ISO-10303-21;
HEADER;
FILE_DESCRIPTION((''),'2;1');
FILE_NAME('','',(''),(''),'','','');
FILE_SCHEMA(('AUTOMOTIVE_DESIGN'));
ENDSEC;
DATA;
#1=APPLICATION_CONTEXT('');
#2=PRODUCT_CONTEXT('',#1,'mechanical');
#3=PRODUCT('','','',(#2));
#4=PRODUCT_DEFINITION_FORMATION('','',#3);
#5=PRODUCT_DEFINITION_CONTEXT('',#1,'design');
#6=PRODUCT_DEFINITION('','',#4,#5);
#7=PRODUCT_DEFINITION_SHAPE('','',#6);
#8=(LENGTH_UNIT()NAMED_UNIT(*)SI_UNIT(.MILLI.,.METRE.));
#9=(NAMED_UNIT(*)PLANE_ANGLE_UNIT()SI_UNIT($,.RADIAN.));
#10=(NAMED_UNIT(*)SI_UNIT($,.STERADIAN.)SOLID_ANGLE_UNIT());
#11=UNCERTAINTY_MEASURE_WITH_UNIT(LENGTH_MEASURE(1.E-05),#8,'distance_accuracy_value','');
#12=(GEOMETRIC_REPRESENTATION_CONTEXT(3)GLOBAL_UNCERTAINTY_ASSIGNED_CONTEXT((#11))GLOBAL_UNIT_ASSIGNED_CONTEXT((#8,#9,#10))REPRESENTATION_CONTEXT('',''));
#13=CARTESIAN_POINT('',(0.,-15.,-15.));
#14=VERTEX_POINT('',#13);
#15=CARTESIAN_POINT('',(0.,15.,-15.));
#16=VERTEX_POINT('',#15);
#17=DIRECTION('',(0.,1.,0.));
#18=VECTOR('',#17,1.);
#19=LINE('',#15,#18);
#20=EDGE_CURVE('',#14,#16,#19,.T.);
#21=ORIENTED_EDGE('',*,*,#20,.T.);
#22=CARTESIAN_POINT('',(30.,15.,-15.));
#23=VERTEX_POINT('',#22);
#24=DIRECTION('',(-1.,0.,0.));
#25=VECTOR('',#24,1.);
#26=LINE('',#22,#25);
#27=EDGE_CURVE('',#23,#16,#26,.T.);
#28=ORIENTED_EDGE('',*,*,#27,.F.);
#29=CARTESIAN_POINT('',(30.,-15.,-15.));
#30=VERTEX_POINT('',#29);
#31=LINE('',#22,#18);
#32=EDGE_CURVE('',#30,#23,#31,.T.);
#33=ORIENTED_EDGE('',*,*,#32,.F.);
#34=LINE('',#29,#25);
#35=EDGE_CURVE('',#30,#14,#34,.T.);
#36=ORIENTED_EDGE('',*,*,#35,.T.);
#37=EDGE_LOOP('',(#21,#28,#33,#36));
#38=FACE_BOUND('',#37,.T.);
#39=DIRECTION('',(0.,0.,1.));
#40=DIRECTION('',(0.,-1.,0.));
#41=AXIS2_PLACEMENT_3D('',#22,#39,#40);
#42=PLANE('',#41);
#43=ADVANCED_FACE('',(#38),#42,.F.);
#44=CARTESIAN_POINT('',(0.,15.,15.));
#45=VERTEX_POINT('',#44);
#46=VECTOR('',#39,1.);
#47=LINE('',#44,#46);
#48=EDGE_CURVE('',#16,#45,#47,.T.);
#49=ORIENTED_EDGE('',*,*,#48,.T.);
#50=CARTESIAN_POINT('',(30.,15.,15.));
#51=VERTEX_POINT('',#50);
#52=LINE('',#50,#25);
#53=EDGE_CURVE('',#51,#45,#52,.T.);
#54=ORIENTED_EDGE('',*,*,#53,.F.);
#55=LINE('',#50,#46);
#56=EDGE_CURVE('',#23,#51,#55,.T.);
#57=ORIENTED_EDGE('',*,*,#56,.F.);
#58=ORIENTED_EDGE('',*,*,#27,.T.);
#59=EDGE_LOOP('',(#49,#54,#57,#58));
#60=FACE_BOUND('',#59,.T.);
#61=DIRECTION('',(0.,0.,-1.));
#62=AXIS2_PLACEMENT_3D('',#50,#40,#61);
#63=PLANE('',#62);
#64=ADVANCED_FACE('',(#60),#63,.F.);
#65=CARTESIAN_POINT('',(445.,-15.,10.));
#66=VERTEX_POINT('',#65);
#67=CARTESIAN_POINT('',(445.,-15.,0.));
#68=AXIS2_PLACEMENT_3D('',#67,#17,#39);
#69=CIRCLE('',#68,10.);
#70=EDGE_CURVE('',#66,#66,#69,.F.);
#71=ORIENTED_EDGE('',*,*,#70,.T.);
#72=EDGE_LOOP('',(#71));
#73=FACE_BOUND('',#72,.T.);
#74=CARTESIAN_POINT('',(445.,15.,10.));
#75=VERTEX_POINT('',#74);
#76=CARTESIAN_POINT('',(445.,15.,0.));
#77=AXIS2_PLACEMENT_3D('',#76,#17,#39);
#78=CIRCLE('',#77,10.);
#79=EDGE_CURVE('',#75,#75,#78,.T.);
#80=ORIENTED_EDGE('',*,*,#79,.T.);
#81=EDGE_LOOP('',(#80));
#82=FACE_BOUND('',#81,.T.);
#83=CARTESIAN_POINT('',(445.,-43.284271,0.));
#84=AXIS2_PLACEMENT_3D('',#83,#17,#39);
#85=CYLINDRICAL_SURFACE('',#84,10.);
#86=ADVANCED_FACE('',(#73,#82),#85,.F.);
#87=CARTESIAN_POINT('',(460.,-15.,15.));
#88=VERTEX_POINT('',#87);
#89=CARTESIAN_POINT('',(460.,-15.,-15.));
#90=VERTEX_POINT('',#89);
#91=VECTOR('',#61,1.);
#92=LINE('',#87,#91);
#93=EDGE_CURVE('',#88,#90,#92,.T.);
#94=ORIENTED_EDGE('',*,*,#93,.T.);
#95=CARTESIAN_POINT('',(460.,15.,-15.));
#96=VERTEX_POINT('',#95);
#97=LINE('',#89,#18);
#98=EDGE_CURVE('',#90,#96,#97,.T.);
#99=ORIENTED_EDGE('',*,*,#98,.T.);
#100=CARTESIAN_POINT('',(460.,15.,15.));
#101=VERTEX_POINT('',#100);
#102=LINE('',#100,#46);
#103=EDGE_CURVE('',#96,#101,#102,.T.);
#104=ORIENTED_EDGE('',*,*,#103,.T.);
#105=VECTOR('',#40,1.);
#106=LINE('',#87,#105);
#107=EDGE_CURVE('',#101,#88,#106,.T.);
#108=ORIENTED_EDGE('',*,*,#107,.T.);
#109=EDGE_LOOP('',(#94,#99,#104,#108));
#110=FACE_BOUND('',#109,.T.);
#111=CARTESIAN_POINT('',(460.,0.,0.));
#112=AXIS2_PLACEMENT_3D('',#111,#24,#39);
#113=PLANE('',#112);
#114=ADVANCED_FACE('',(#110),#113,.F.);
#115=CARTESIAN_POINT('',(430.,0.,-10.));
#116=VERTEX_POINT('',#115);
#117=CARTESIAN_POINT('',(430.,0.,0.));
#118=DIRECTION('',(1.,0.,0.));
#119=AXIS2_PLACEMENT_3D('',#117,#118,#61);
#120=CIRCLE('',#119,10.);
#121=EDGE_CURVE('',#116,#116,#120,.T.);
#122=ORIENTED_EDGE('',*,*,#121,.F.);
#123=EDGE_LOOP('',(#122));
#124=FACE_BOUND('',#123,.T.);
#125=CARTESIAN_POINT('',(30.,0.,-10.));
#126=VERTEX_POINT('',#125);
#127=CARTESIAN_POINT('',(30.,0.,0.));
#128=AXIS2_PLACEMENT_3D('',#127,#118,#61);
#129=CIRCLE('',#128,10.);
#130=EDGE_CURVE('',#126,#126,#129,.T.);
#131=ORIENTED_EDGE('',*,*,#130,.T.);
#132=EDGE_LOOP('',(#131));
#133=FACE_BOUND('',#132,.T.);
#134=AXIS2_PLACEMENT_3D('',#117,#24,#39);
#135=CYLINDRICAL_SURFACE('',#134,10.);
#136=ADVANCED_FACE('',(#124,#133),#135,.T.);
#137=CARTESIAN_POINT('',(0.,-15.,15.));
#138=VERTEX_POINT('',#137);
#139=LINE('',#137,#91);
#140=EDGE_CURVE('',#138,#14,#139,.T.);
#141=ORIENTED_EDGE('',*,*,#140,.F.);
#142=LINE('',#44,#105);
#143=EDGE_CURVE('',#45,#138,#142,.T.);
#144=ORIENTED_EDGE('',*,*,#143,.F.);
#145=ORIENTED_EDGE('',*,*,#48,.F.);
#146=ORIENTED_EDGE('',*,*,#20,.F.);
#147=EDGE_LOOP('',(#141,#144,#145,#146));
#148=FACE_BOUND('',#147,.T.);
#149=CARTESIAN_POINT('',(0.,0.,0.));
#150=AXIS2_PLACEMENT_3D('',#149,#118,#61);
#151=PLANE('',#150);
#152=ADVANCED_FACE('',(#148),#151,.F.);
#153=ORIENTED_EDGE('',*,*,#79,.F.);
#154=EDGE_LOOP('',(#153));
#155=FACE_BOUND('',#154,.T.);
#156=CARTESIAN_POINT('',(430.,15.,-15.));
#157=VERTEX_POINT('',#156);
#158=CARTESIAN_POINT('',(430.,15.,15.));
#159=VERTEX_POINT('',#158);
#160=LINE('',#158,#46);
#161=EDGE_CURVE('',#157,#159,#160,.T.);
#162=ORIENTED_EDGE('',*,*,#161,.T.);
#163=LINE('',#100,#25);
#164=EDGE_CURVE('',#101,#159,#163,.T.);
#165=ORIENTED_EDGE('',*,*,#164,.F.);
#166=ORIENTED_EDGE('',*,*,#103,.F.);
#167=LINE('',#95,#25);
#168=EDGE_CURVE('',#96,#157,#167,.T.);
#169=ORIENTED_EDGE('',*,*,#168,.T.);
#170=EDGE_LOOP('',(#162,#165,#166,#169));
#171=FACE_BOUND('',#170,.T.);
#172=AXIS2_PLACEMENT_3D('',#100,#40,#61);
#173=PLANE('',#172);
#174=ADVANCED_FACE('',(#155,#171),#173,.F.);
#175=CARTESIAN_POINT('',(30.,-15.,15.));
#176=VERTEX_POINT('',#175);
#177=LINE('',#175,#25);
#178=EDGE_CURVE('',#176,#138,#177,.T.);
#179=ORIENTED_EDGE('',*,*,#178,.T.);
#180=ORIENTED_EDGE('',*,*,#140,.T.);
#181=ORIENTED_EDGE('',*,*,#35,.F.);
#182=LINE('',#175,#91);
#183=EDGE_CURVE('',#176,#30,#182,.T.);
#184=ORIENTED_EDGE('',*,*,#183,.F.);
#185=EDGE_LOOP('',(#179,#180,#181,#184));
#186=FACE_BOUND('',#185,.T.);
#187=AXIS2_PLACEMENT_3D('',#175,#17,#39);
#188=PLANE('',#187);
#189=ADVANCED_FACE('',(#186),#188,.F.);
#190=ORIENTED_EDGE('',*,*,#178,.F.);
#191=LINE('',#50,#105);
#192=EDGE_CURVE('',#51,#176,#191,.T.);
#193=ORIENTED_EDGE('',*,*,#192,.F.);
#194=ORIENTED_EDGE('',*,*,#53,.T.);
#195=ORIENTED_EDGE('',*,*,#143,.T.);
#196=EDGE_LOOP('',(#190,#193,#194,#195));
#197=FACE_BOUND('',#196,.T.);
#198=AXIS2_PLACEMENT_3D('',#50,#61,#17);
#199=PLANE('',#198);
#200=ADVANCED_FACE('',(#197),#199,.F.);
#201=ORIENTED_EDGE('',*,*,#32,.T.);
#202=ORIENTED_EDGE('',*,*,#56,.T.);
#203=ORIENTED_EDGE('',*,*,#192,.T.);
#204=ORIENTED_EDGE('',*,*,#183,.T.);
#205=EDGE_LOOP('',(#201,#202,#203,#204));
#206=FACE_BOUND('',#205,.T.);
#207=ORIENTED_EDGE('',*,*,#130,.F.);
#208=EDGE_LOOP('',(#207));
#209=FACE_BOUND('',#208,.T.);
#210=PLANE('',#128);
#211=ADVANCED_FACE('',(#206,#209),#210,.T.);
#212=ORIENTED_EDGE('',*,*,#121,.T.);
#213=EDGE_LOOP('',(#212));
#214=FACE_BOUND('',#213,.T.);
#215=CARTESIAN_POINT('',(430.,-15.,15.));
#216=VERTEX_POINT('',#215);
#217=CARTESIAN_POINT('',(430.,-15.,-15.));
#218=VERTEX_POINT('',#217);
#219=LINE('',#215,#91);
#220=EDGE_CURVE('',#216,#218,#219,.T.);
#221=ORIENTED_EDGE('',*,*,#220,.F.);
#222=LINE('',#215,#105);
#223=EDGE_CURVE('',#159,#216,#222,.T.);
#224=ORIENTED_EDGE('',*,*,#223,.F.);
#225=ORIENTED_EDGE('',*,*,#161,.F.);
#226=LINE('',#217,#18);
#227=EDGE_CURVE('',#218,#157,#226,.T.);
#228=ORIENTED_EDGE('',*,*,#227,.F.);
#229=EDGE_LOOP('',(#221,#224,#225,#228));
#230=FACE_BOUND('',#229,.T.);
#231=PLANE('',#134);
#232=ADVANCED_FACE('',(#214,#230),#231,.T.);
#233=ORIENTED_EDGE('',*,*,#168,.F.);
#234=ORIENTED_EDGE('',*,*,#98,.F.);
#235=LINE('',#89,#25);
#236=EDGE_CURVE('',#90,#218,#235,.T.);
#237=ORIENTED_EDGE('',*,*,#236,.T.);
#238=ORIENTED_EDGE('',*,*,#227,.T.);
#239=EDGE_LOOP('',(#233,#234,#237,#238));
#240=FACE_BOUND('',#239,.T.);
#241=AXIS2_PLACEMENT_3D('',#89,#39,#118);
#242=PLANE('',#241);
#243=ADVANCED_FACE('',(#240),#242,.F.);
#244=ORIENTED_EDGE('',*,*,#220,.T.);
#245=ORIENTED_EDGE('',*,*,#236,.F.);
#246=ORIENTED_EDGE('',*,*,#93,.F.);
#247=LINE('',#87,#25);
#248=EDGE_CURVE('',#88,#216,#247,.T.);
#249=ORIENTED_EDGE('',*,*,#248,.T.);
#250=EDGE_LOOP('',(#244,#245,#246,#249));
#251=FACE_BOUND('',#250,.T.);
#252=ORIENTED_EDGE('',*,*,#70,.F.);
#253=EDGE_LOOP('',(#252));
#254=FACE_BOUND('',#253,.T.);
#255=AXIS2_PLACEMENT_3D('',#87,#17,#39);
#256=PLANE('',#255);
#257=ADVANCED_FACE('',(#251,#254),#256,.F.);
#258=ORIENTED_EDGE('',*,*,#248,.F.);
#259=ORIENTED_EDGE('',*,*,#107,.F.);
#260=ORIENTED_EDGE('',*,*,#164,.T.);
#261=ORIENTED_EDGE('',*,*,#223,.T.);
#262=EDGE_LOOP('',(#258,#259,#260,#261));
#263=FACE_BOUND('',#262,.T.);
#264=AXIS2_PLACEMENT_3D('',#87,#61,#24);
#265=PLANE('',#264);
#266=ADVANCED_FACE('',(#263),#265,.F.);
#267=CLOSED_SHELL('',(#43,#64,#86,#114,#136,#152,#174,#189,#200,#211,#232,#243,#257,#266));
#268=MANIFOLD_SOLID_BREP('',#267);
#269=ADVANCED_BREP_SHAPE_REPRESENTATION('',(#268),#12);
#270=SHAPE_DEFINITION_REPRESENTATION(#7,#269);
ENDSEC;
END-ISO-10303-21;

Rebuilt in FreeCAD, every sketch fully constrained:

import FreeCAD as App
import Part
import Sketcher
Q = App.Units.Quantity

doc = App.newDocument("Part")
body = doc.addObject("PartDesign::Body", "Body")

sketch1 = body.newObject("Sketcher::SketchObject", "Sketch")
sketch1.AttachmentSupport = (doc.getObject("YZ_Plane"), [""])
sketch1.MapMode = "FlatFace"
sketch1.addGeometry([
    Part.LineSegment(App.Vector(15, 15, 0), App.Vector(-15, 15, 0)),
    Part.LineSegment(App.Vector(-15, 15, 0), App.Vector(-15, -15, 0)),
    Part.LineSegment(App.Vector(-15, -15, 0), App.Vector(15, -15, 0)),
    Part.LineSegment(App.Vector(15, -15, 0), App.Vector(15, 15, 0)),
], False)
sketch1.addConstraint([
    Sketcher.Constraint("Coincident", 0, 2, 1, 1),
    Sketcher.Constraint("Coincident", 1, 2, 2, 1),
    Sketcher.Constraint("Coincident", 2, 2, 3, 1),
    Sketcher.Constraint("Coincident", 3, 2, 0, 1),
    Sketcher.Constraint("Horizontal", 0),
    Sketcher.Constraint("Vertical", 1),
    Sketcher.Constraint("Horizontal", 2),
    Sketcher.Constraint("Vertical", 3),
    Sketcher.Constraint("Symmetric", 0, 2, 2, 2, -1, 1),
    Sketcher.Constraint("Equal", 2, 1),
    Sketcher.Constraint("DistanceX", 0, 2, 0, 1, Q("30 mm")),
])
pad1 = body.newObject("PartDesign::Pad", "Pad")
pad1.Profile = sketch1
pad1.Length = 30

sketch2 = body.newObject("Sketcher::SketchObject", "Sketch001")
sketch2.AttachmentSupport = (doc.getObject("YZ_Plane"), [""])
sketch2.MapMode = "FlatFace"
sketch2.AttachmentOffset = App.Placement(App.Vector(0, 0, 30), App.Rotation())
sketch2.addGeometry(Part.Circle(App.Vector(0, 0, 0), App.Vector(0, 0, 1), 10), False)
sketch2.addConstraint([
    Sketcher.Constraint("Coincident", 0, 3, -1, 1),
    Sketcher.Constraint("Diameter", 0, Q("20 mm")),
])
pad2 = body.newObject("PartDesign::Pad", "Pad001")
pad2.Profile = sketch2
pad2.Length = 400

sketch3 = body.newObject("Sketcher::SketchObject", "Sketch002")
sketch3.AttachmentSupport = (doc.getObject("YZ_Plane"), [""])
sketch3.MapMode = "FlatFace"
sketch3.AttachmentOffset = App.Placement(App.Vector(0, 0, 430), App.Rotation())
sketch3.addGeometry([
    Part.LineSegment(App.Vector(15, 15, 0), App.Vector(-15, 15, 0)),
    Part.LineSegment(App.Vector(-15, 15, 0), App.Vector(-15, -15, 0)),
    Part.LineSegment(App.Vector(-15, -15, 0), App.Vector(15, -15, 0)),
    Part.LineSegment(App.Vector(15, -15, 0), App.Vector(15, 15, 0)),
], False)
sketch3.addConstraint([
    Sketcher.Constraint("Coincident", 0, 2, 1, 1),
    Sketcher.Constraint("Coincident", 1, 2, 2, 1),
    Sketcher.Constraint("Coincident", 2, 2, 3, 1),
    Sketcher.Constraint("Coincident", 3, 2, 0, 1),
    Sketcher.Constraint("Horizontal", 0),
    Sketcher.Constraint("Vertical", 1),
    Sketcher.Constraint("Horizontal", 2),
    Sketcher.Constraint("Vertical", 3),
    Sketcher.Constraint("Symmetric", 0, 2, 2, 2, -1, 1),
    Sketcher.Constraint("Equal", 2, 1),
    Sketcher.Constraint("DistanceX", 0, 2, 0, 1, Q("30 mm")),
])
pad3 = body.newObject("PartDesign::Pad", "Pad002")
pad3.Profile = sketch3
pad3.Length = 30

sketch4 = body.newObject("Sketcher::SketchObject", "Sketch003")
sketch4.AttachmentSupport = (doc.getObject("XZ_Plane"), [""])
sketch4.MapMode = "FlatFace"
sketch4.AttachmentOffset = App.Placement(App.Vector(0, 0, -15), App.Rotation())
sketch4.addGeometry(Part.Circle(App.Vector(445, 0, 0), App.Vector(0, 0, 1), 10), False)
sketch4.addConstraint([
    Sketcher.Constraint("PointOnObject", 0, 3, -1),
    Sketcher.Constraint("Diameter", 0, Q("20 mm")),
    Sketcher.Constraint("DistanceX", -1, 1, 0, 3, Q("445 mm")),
])
pocket1 = body.newObject("PartDesign::Pocket", "Pocket")
pocket1.Profile = sketch4
pocket1.Length = 30
pocket1.Reversed = True

doc.recompute()
